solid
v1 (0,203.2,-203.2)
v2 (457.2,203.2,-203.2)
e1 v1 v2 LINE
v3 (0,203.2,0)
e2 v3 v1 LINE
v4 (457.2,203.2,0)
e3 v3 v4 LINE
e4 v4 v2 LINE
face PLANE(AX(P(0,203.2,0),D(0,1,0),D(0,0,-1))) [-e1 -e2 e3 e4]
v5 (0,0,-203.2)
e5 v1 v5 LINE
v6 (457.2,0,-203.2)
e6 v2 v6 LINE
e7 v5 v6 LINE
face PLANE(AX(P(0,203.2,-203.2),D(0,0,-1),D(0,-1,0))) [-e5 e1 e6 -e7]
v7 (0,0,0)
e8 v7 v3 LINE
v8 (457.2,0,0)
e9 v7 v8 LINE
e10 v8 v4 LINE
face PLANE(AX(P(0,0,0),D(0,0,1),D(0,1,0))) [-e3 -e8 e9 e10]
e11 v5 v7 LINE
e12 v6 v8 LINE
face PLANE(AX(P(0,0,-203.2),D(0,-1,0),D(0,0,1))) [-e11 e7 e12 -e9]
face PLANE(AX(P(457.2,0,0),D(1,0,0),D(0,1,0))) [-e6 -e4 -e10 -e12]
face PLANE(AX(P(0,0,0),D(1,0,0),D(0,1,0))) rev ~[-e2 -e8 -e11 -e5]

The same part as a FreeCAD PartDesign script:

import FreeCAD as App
import Part
import Sketcher
from FreeCAD import Vector
Q = App.Units.Quantity


def add_polygon(sketch, points):
    """Adds a closed chain of lines whose ends are joined by coincident constraints."""
    first, n = sketch.GeometryCount, len(points)
    for a, b in zip(points, points[1:] + points[:1]):
        sketch.addGeometry(Part.LineSegment(App.Vector(*a, 0), App.Vector(*b, 0)), False)
    for i in range(n):
        sketch.addConstraint(Sketcher.Constraint("Coincident", first + i, 2, first + (i + 1) % n, 1))

doc = App.newDocument("Part")
params = doc.addObject("Spreadsheet::Sheet", "Params")
for row, (alias, value) in enumerate([
    ("sketch1_width", "8 in"),
    ("pad1_length", "18 in"),
], start=1):
    params.set(f"A{row}", alias)
    params.set(f"B{row}", "=" + value)
    params.setAlias(f"B{row}", alias)

body = doc.addObject("PartDesign::Body", "Body")

sketch1 = body.newObject("Sketcher::SketchObject", "Sketch")
sketch1.AttachmentSupport = (doc.getObject("YZ_Plane"), [""])
sketch1.MapMode = "FlatFace"
add_polygon(sketch1, [(203.2, 0), (0, 0), (0, -203.2), (203.2, -203.2)])
sketch1.addConstraint(Sketcher.Constraint("Horizontal", 0))
sketch1.addConstraint(Sketcher.Constraint("Vertical", 1))
sketch1.addConstraint(Sketcher.Constraint("Horizontal", 2))
sketch1.addConstraint(Sketcher.Constraint("Vertical", 3))
sketch1.addConstraint(Sketcher.Constraint("Coincident", 0, 2, -1, 1))
sketch1.addConstraint(Sketcher.Constraint("Equal", 2, 1))
sketch1.addConstraint(Sketcher.Constraint("DistanceX", 0, 2, 0, 1, Q("8 in")))
sketch1.setExpression("Constraints[10]", "Params.sketch1_width")
pad1 = body.newObject("PartDesign::Pad", "Pad")
pad1.Profile = sketch1
pad1.setExpression("Length", "Params.pad1_length")

doc.recompute()
